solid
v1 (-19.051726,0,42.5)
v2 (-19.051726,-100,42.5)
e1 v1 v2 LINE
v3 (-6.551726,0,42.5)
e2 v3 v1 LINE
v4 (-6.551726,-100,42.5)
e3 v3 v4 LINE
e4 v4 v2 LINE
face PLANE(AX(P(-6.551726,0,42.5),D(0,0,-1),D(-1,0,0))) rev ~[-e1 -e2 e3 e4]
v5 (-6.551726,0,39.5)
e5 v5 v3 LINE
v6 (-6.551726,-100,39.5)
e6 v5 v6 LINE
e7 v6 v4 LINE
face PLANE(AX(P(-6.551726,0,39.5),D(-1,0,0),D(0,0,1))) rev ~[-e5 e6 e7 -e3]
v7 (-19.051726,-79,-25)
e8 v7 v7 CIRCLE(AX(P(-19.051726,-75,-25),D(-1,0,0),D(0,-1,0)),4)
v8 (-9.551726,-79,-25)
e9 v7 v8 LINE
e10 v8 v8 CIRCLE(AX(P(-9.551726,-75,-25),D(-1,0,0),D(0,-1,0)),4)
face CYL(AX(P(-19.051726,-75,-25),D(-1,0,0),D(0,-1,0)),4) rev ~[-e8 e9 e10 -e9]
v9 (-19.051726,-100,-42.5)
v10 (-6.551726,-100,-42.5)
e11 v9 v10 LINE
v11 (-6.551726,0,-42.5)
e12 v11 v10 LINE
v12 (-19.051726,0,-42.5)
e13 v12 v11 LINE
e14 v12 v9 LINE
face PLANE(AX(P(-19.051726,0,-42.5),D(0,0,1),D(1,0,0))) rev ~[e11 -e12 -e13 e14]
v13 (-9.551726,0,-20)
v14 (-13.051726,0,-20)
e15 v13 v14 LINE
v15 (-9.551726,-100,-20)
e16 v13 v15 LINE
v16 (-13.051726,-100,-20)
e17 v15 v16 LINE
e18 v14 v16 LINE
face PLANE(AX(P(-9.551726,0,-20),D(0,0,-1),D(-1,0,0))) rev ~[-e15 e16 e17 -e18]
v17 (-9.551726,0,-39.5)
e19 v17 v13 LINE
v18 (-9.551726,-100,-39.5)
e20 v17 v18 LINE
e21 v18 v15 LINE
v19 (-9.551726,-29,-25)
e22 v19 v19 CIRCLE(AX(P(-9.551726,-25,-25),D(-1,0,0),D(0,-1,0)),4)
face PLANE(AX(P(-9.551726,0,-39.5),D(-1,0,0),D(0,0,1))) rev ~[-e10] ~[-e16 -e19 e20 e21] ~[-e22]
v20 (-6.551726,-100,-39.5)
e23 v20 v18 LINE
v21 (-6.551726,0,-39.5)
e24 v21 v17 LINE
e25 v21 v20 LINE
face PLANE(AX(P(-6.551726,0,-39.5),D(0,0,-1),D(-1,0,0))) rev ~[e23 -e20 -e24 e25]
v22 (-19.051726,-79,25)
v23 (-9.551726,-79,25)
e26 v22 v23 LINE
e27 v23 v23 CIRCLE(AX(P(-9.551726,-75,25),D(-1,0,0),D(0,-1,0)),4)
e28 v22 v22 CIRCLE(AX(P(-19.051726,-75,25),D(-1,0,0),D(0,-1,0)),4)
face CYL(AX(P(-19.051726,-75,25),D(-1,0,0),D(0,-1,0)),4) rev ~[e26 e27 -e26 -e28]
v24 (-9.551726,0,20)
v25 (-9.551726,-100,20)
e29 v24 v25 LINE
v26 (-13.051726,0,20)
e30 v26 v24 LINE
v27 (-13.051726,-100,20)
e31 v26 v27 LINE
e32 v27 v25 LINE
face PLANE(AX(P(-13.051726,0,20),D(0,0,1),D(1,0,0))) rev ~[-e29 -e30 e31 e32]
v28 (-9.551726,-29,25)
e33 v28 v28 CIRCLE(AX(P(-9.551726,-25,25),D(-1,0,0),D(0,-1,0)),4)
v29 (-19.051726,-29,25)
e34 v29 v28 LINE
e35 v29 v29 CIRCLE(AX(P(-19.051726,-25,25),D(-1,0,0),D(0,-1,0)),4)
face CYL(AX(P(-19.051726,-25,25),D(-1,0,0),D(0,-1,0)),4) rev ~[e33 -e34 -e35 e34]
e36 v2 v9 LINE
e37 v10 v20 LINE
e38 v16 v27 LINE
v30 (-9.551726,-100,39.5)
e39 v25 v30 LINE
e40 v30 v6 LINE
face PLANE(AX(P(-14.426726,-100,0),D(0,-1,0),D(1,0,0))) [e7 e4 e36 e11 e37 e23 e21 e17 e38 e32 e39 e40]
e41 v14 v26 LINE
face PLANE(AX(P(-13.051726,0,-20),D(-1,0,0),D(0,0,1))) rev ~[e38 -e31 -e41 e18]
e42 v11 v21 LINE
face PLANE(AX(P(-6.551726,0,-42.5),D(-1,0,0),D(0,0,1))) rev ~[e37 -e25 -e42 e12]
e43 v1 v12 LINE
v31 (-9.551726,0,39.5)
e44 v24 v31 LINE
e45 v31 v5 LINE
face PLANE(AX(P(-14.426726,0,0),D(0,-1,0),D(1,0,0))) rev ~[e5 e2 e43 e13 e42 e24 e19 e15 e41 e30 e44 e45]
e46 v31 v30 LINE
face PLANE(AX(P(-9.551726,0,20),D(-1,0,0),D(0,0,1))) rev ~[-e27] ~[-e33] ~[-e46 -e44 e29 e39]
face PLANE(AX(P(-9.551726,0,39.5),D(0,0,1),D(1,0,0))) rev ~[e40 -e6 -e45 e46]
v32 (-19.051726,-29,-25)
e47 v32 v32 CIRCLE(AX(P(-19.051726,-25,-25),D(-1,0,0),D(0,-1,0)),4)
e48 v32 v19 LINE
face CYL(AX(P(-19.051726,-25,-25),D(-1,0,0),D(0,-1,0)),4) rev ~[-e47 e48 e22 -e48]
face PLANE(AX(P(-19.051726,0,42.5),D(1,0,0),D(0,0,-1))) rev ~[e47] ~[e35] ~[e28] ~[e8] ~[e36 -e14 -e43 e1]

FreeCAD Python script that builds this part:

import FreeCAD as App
import Part
import Sketcher
from FreeCAD import Vector


def add_polygon(sketch, points):
    """Adds a closed chain of lines whose ends are joined by coincident constraints."""
    first, n = sketch.GeometryCount, len(points)
    for a, b in zip(points, points[1:] + points[:1]):
        sketch.addGeometry(Part.LineSegment(App.Vector(*a, 0), App.Vector(*b, 0)), False)
    for i in range(n):
        sketch.addConstraint(Sketcher.Constraint("Coincident", first + i, 2, first + (i + 1) % n, 1))

doc = App.newDocument("Part")
body = doc.addObject("PartDesign::Body", "Body")

sketch1 = body.newObject("Sketcher::SketchObject", "Sketch")
sketch1.AttachmentSupport = (doc.getObject("XZ_Plane"), [""])
sketch1.MapMode = "FlatFace"
add_polygon(sketch1, [(-6.6, 42.5), (-19.1, 42.5), (-19.1, -42.5), (-6.6, -42.5), (-6.6, -39.5), (-9.6, -39.5), (-9.6, -20), (-13.1, -20), (-13.1, 20), (-9.6, 20), (-9.6, 39.5), (-6.6, 39.5)])
sketch1.addConstraint([
    Sketcher.Constraint("Horizontal", 0),
    Sketcher.Constraint("Vertical", 1),
    Sketcher.Constraint("Horizontal", 2),
    Sketcher.Constraint("Vertical", 3),
    Sketcher.Constraint("Horizontal", 4),
    Sketcher.Constraint("Vertical", 5),
    Sketcher.Constraint("Horizontal", 6),
    Sketcher.Constraint("Vertical", 7),
    Sketcher.Constraint("Horizontal", 8),
    Sketcher.Constraint("Vertical", 9),
    Sketcher.Constraint("Horizontal", 10),
    Sketcher.Constraint("Vertical", 11),
    Sketcher.Constraint("Symmetric", 5, 2, 8, 2, -1),
    Sketcher.Constraint("Symmetric", 3, 2, 10, 2, -1),
    Sketcher.Constraint("Equal", 10, 3),
    Sketcher.Constraint("Equal", 3, 11),
    Sketcher.Constraint("DistanceX", 4, 2, 4, 1, 3.0),
    Sketcher.Constraint("DistanceY", 1, 2, 1, 1, 85.0),
    Sketcher.Constraint("DistanceY", 7, 1, 7, 2, 40.0),
    Sketcher.Constraint("DistanceX", 0, 2, 0, 1, 12.5),
    Sketcher.Constraint("DistanceX", 6, 2, 6, 1, 3.5),
    Sketcher.Constraint("DistanceX", 0, 2, -1, 1, 19.051726),
])
pad1 = body.newObject("PartDesign::Pad", "Pad")
pad1.Profile = sketch1
pad1.Length = 100

sketch2 = body.newObject("Sketcher::SketchObject", "Sketch001")
sketch2.AttachmentSupport = (doc.getObject("YZ_Plane"), [""])
sketch2.MapMode = "FlatFace"
sketch2.AttachmentOffset = App.Placement(Vector(0, 0, -19.051726), App.Rotation())
sketch2.addGeometry([
    Part.Circle(Vector(-25, 25, 0), Vector(0, 0, 1), 4),
    Part.Circle(Vector(-75, 25, 0), Vector(0, 0, 1), 4),
    Part.Circle(Vector(-25, -25, 0), Vector(0, 0, 1), 4),
    Part.Circle(Vector(-75, -25, 0), Vector(0, 0, 1), 4),
], False)
sketch2.addConstraint([
    Sketcher.Constraint("Equal", 0, 1),
    Sketcher.Constraint("Equal", 1, 2),
    Sketcher.Constraint("Equal", 2, 3),
    Sketcher.Constraint("Symmetric", 0, 3, 2, 3, -1),
    Sketcher.Constraint("Symmetric", 1, 3, 3, 3, -1),
    Sketcher.Constraint("Horizontal", 0, 3, 1, 3),
    Sketcher.Constraint("Diameter", 0, 8.0),
    Sketcher.Constraint("DistanceX", 0, 3, -1, 1, 25.0),
    Sketcher.Constraint("DistanceY", -1, 1, 0, 3, 25.0),
    Sketcher.Constraint("DistanceX", 1, 3, -1, 1, 75.0),
])
pocket1 = body.newObject("PartDesign::Pocket", "Pocket")
pocket1.Profile = sketch2
pocket1.Length = 25
pocket1.Reversed = True

doc.recompute()
